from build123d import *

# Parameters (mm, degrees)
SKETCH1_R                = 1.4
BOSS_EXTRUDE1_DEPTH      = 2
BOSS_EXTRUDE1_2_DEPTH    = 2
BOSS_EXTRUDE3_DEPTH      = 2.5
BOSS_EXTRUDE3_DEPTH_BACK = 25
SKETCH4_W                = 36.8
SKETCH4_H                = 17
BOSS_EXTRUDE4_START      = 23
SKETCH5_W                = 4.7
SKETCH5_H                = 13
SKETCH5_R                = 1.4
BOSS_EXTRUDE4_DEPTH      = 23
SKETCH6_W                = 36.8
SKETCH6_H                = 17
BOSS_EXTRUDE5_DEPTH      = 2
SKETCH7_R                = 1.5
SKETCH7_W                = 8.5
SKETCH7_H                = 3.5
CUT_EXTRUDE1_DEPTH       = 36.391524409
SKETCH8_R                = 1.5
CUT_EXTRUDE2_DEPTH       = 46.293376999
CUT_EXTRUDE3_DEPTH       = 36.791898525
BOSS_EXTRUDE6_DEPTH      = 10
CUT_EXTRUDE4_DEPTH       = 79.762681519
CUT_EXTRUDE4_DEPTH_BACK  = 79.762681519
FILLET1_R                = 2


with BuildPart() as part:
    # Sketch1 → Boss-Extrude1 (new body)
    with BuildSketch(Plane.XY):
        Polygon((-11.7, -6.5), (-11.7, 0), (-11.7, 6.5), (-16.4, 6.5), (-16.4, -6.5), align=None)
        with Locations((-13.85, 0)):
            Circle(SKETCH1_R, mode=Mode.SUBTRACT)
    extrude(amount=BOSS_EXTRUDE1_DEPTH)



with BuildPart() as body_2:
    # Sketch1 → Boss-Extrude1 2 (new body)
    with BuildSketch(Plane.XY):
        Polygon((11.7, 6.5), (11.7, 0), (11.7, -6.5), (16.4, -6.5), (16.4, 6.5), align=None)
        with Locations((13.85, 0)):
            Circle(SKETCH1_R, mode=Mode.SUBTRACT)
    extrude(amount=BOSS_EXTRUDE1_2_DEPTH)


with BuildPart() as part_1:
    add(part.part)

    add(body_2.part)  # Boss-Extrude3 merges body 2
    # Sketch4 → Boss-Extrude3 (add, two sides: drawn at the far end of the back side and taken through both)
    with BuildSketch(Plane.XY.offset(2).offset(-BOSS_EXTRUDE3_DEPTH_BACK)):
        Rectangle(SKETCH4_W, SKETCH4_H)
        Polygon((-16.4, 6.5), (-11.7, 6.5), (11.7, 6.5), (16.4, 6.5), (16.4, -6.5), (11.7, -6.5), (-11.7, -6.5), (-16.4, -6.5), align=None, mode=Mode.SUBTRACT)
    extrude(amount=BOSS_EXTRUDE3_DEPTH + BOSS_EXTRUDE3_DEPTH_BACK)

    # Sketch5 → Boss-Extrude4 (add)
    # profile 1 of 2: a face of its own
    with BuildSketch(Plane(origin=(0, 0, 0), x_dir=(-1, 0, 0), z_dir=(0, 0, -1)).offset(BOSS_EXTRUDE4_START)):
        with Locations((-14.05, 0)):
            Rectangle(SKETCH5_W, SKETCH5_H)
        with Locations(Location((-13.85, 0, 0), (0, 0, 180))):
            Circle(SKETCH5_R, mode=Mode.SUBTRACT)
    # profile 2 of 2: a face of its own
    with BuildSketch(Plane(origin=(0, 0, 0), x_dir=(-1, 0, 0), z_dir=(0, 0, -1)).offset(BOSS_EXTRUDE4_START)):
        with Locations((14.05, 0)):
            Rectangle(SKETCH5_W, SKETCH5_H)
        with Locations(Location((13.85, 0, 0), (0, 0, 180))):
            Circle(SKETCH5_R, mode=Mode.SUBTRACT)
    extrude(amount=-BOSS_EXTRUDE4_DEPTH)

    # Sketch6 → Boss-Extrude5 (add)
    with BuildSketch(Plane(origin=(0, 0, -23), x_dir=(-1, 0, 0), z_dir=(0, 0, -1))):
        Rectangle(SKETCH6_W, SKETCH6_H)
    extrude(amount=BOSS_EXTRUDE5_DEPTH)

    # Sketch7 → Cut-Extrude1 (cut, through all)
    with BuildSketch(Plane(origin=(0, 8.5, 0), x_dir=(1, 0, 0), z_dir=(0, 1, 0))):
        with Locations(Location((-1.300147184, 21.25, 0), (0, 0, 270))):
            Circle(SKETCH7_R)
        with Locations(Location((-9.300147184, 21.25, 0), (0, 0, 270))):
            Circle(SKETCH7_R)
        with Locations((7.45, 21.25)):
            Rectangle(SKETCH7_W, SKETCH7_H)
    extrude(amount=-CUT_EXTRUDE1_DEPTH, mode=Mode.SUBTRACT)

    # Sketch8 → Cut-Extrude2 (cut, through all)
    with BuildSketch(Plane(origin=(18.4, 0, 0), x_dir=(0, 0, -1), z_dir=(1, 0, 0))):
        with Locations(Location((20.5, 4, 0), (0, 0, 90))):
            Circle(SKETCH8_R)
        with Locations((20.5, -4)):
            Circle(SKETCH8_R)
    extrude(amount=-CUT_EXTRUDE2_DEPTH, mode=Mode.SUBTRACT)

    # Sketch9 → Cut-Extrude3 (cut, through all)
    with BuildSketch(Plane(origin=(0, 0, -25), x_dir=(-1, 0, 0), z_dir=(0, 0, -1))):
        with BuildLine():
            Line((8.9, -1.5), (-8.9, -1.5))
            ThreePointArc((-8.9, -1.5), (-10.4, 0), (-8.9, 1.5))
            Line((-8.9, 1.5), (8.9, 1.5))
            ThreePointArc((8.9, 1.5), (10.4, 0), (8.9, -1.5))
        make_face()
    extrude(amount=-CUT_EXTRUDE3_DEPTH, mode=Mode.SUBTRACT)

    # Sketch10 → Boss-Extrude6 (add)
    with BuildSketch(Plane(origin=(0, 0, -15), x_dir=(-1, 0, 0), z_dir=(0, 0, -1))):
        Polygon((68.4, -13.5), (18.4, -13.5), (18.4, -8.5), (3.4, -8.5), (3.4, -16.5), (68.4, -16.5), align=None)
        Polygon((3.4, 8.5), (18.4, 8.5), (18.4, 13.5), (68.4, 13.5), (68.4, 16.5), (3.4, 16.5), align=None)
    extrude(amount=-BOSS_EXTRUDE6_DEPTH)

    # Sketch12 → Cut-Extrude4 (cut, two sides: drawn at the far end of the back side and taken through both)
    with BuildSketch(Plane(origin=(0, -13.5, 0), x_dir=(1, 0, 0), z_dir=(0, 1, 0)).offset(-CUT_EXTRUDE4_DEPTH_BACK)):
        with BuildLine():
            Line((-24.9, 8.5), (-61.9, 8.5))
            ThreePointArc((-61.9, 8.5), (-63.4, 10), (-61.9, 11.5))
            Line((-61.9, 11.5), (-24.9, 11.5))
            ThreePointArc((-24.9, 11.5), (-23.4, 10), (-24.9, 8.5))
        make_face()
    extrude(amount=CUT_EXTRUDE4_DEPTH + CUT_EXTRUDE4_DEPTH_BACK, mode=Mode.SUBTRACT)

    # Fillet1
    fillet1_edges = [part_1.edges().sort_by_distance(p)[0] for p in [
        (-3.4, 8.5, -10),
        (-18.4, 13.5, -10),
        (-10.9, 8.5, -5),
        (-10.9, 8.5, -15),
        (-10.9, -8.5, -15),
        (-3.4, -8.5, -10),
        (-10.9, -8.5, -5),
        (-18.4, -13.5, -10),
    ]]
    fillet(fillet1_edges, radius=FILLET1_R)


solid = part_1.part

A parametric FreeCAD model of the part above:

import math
import FreeCAD as App
import Part
import Sketcher


def edges_at(feature, points):
    """Names of the edges that pass closest to the given points."""
    edges = feature.Shape.Edges
    near = lambda p: min(range(len(edges)), key=lambda i: edges[i].distToShape(Part.Vertex(*p))[0])
    return sorted({f"Edge{near(p) + 1}" for p in points})


def add_polygon(sketch, points):
    """Adds a closed chain of lines whose ends are joined by coincident constraints."""
    first, n = sketch.GeometryCount, len(points)
    for a, b in zip(points, points[1:] + points[:1]):
        sketch.addGeometry(Part.LineSegment(App.Vector(*a, 0), App.Vector(*b, 0)), False)
    for i in range(n):
        sketch.addConstraint(Sketcher.Constraint("Coincident", first + i, 2, first + (i + 1) % n, 1))

doc = App.newDocument("Part")
body = doc.addObject("PartDesign::Body", "Body")

# Sketch on XY plane
sketch1 = body.newObject("Sketcher::SketchObject", "Sketch")
sketch1.AttachmentSupport = (doc.getObject("XY_Plane"), [""])
sketch1.MapMode = "FlatFace"
add_polygon(sketch1, [(-11.7, -6.5), (-11.7, 6.5), (-16.4, 6.5), (-16.4, -6.5)])  # lines 0-3
sketch1.addGeometry(Part.Circle(App.Vector(-13.85, 0, 0), App.Vector(0, 0, 1), 1.4), False)  # 4
sketch1.addConstraint(Sketcher.Constraint("Vertical", 0))
sketch1.addConstraint(Sketcher.Constraint("Horizontal", 1))
sketch1.addConstraint(Sketcher.Constraint("Vertical", 2))
sketch1.addConstraint(Sketcher.Constraint("Horizontal", 3))
sketch1.addConstraint(Sketcher.Constraint("PointOnObject", 4, 3, -1))
sketch1.addConstraint(Sketcher.Constraint("Diameter", 4, 2.8))
sketch1.addConstraint(Sketcher.Constraint("DistanceY", 0, 1, 0, 2, 13.0))
sketch1.addConstraint(Sketcher.Constraint("DistanceX", 1, 2, 1, 1, 4.7))
sketch1.addConstraint(Sketcher.Constraint("DistanceX", 0, 2, -1, 1, 11.7))
sketch1.addConstraint(Sketcher.Constraint("DistanceY", -1, 1, 0, 2, 6.5))
sketch1.addConstraint(Sketcher.Constraint("DistanceX", 4, 3, -1, 1, 13.85))
pad1 = body.newObject("PartDesign::Pad", "Pad")
pad1.Profile = sketch1
pad1.Length = 2
body2 = doc.addObject("PartDesign::Body", "Body001")

# Sketch on XY plane
sketch2 = body2.newObject("Sketcher::SketchObject", "Sketch001")
sketch2.AttachmentSupport = (doc.getObject("XY_Plane001"), [""])
sketch2.MapMode = "FlatFace"
add_polygon(sketch2, [(11.7, 6.5), (11.7, -6.5), (16.4, -6.5), (16.4, 6.5)])  # lines 0-3
sketch2.addGeometry(Part.Circle(App.Vector(13.85, 0, 0), App.Vector(0, 0, 1), 1.4), False)  # 4
sketch2.addConstraint(Sketcher.Constraint("Vertical", 0))
sketch2.addConstraint(Sketcher.Constraint("Horizontal", 1))
sketch2.addConstraint(Sketcher.Constraint("Vertical", 2))
sketch2.addConstraint(Sketcher.Constraint("Horizontal", 3))
sketch2.addConstraint(Sketcher.Constraint("PointOnObject", 4, 3, -1))
sketch2.addConstraint(Sketcher.Constraint("Diameter", 4, 2.8))
sketch2.addConstraint(Sketcher.Constraint("DistanceY", 0, 2, 0, 1, 13.0))
sketch2.addConstraint(Sketcher.Constraint("DistanceX", 1, 1, 1, 2, 4.7))
sketch2.addConstraint(Sketcher.Constraint("DistanceX", -1, 1, 0, 2, 11.7))
sketch2.addConstraint(Sketcher.Constraint("DistanceY", 0, 2, -1, 1, 6.5))
sketch2.addConstraint(Sketcher.Constraint("DistanceX", -1, 1, 4, 3, 13.85))
pad2 = body2.newObject("PartDesign::Pad", "Pad001")
pad2.Profile = sketch2
pad2.Length = 2
body.AllowCompound = True
doc.recompute()

boolean = body.newObject("PartDesign::Boolean", "Boolean")
boolean.Type = "Fuse"
boolean.addObjects([body2])

# Sketch on XY plane
sketch3 = body.newObject("Sketcher::SketchObject", "Sketch002")
sketch3.AttachmentSupport = (doc.getObject("XY_Plane"), [""])
sketch3.MapMode = "FlatFace"
sketch3.AttachmentOffset = App.Placement(App.Vector(0, 0, 2), App.Rotation())
add_polygon(sketch3, [(-18.4, 8.5), (-18.4, -8.5), (18.4, -8.5), (18.4, 8.5)])  # lines 0-3
add_polygon(sketch3, [(-16.4, -6.5), (-16.4, 6.5), (16.4, 6.5), (16.4, -6.5)])  # lines 4-7
sketch3.addConstraint(Sketcher.Constraint("Vertical", 0))
sketch3.addConstraint(Sketcher.Constraint("Horizontal", 1))
sketch3.addConstraint(Sketcher.Constraint("Vertical", 2))
sketch3.addConstraint(Sketcher.Constraint("Horizontal", 3))
sketch3.addConstraint(Sketcher.Constraint("Vertical", 4))
sketch3.addConstraint(Sketcher.Constraint("Horizontal", 5))
sketch3.addConstraint(Sketcher.Constraint("Vertical", 6))
sketch3.addConstraint(Sketcher.Constraint("Horizontal", 7))
sketch3.addConstraint(Sketcher.Constraint("Symmetric", 0, 2, 2, 2, -1, 1))
sketch3.addConstraint(Sketcher.Constraint("Symmetric", 4, 2, 6, 2, -1, 1))
sketch3.addConstraint(Sketcher.Constraint("DistanceY", 0, 2, 0, 1, 17.0))
sketch3.addConstraint(Sketcher.Constraint("DistanceY", 4, 1, 4, 2, 13.0))
sketch3.addConstraint(Sketcher.Constraint("DistanceX", 1, 1, 1, 2, 36.8))
sketch3.addConstraint(Sketcher.Constraint("DistanceX", 5, 1, 5, 2, 32.8))
pad3 = body.newObject("PartDesign::Pad", "Pad002")
pad3.Profile = sketch3
pad3.Type = "TwoLengths"
pad3.Length = 2.5
pad3.Length2 = 25

# Sketch on XY plane
sketch4 = body.newObject("Sketcher::SketchObject", "Sketch003")
sketch4.AttachmentSupport = (doc.getObject("XY_Plane"), [""])
sketch4.MapMode = "FlatFace"
sketch4.AttachmentOffset = App.Placement(App.Vector(0, 0, -23), App.Rotation())
add_polygon(sketch4, [(16.4, 6.5), (16.4, -6.5), (11.7, -6.5), (11.7, 6.5)])  # lines 0-3
sketch4.addGeometry(Part.Circle(App.Vector(13.85, 0, 0), App.Vector(0, 0, 1), 1.4), False)  # 4
add_polygon(sketch4, [(-11.7, 6.5), (-11.7, -6.5), (-16.4, -6.5), (-16.4, 6.5)])  # lines 5-8
sketch4.addGeometry(Part.Circle(App.Vector(-13.85, 0, 0), App.Vector(0, 0, 1), 1.4), False)  # 9
sketch4.addConstraint(Sketcher.Constraint("Vertical", 0))
sketch4.addConstraint(Sketcher.Constraint("Horizontal", 1))
sketch4.addConstraint(Sketcher.Constraint("Vertical", 2))
sketch4.addConstraint(Sketcher.Constraint("Horizontal", 3))
sketch4.addConstraint(Sketcher.Constraint("Vertical", 5))
sketch4.addConstraint(Sketcher.Constraint("Horizontal", 6))
sketch4.addConstraint(Sketcher.Constraint("Vertical", 7))
sketch4.addConstraint(Sketcher.Constraint("Horizontal", 8))
sketch4.addConstraint(Sketcher.Constraint("Equal", 4, 9))
sketch4.addConstraint(Sketcher.Constraint("Symmetric", 4, 3, 9, 3, -1, 1))
sketch4.addConstraint(Sketcher.Constraint("Symmetric", 2, 2, 5, 2, -1, 1))
sketch4.addConstraint(Sketcher.Constraint("Symmetric", 0, 2, 7, 2, -1, 1))
sketch4.addConstraint(Sketcher.Constraint("PointOnObject", 4, 3, -1))
sketch4.addConstraint(Sketcher.Constraint("Horizontal", 1, 2, 5, 2))
sketch4.addConstraint(Sketcher.Constraint("Diameter", 4, 2.8))
sketch4.addConstraint(Sketcher.Constraint("DistanceY", 0, 2, 0, 1, 13.0))
sketch4.addConstraint(Sketcher.Constraint("DistanceX", 1, 2, 1, 1, 4.7))
sketch4.addConstraint(Sketcher.Constraint("DistanceX", -1, 1, 0, 2, 16.4))
sketch4.addConstraint(Sketcher.Constraint("DistanceX", 9, 3, 4, 3, 27.7))
pad4 = body.newObject("PartDesign::Pad", "Pad003")
pad4.Profile = sketch4
pad4.Length = 23

# Sketch on XY plane
sketch5 = body.newObject("Sketcher::SketchObject", "Sketch004")
sketch5.AttachmentSupport = (doc.getObject("XY_Plane"), [""])
sketch5.MapMode = "FlatFace"
sketch5.AttachmentOffset = App.Placement(App.Vector(0, 0, -23), App.Rotation())
add_polygon(sketch5, [(18.4, 8.5), (18.4, -8.5), (-18.4, -8.5), (-18.4, 8.5)])  # lines 0-3
sketch5.addConstraint(Sketcher.Constraint("Vertical", 0))
sketch5.addConstraint(Sketcher.Constraint("Horizontal", 1))
sketch5.addConstraint(Sketcher.Constraint("Vertical", 2))
sketch5.addConstraint(Sketcher.Constraint("Horizontal", 3))
sketch5.addConstraint(Sketcher.Constraint("Symmetric", 0, 2, 2, 2, -1, 1))
sketch5.addConstraint(Sketcher.Constraint("DistanceY", 0, 2, 0, 1, 17.0))
sketch5.addConstraint(Sketcher.Constraint("DistanceX", 1, 2, 1, 1, 36.8))
pad5 = body.newObject("PartDesign::Pad", "Pad004")
pad5.Profile = sketch5
pad5.Length = 2
pad5.Reversed = True

# Sketch on XZ plane
sketch6 = body.newObject("Sketcher::SketchObject", "Sketch005")
sketch6.AttachmentSupport = (doc.getObject("XZ_Plane"), [""])
sketch6.MapMode = "FlatFace"
sketch6.AttachmentOffset = App.Placement(App.Vector(0, 0, -8.5), App.Rotation())
sketch6.addGeometry(Part.Circle(App.Vector(-1.300147, -21.25, 0), App.Vector(0, 0, 1), 1.5), False)  # 0
sketch6.addGeometry(Part.Circle(App.Vector(-9.300147, -21.25, 0), App.Vector(0, 0, 1), 1.5), False)  # 1
add_polygon(sketch6, [(3.2, -23), (3.2, -19.5), (11.7, -19.5), (11.7, -23)])  # lines 2-5
sketch6.addConstraint(Sketcher.Constraint("Vertical", 2))
sketch6.addConstraint(Sketcher.Constraint("Horizontal", 3))
sketch6.addConstraint(Sketcher.Constraint("Vertical", 4))
sketch6.addConstraint(Sketcher.Constraint("Horizontal", 5))
sketch6.addConstraint(Sketcher.Constraint("Equal", 0, 1))
sketch6.addConstraint(Sketcher.Constraint("Horizontal", 0, 3, 1, 3))
sketch6.addConstraint(Sketcher.Constraint("Diameter", 0, 3.0))
sketch6.addConstraint(Sketcher.Constraint("DistanceX", 3, 1, 3, 2, 8.5))
sketch6.addConstraint(Sketcher.Constraint("DistanceY", 2, 1, 2, 2, 3.5))
sketch6.addConstraint(Sketcher.Constraint("DistanceY", 4, 2, -1, 1, 23.0))
sketch6.addConstraint(Sketcher.Constraint("DistanceX", 1, 3, 0, 3, 8.0))
sketch6.addConstraint(Sketcher.Constraint("DistanceX", -1, 1, 2, 2, 3.2))
sketch6.addConstraint(Sketcher.Constraint("DistanceY", 0, 3, -1, 1, 21.25))
sketch6.addConstraint(Sketcher.Constraint("DistanceX", 0, 3, -1, 1, 1.300147))
pocket1 = body.newObject("PartDesign::Pocket", "Pocket")
pocket1.Profile = sketch6
pocket1.Type = "ThroughAll"
pocket1.Reversed = True

# Sketch on YZ plane
sketch7 = body.newObject("Sketcher::SketchObject", "Sketch006")
sketch7.AttachmentSupport = (doc.getObject("YZ_Plane"), [""])
sketch7.MapMode = "FlatFace"
sketch7.AttachmentOffset = App.Placement(App.Vector(0, 0, 18.4), App.Rotation())
sketch7.addGeometry(Part.Circle(App.Vector(4, -20.5, 0), App.Vector(0, 0, 1), 1.5), False)
sketch7.addGeometry(Part.Circle(App.Vector(-4, -20.5, 0), App.Vector(0, 0, 1), 1.5), False)
sketch7.addConstraint(Sketcher.Constraint("Equal", 0, 1))
sketch7.addConstraint(Sketcher.Constraint("Symmetric", 0, 3, 1, 3, -2))
sketch7.addConstraint(Sketcher.Constraint("Diameter", 0, 3.0))
sketch7.addConstraint(Sketcher.Constraint("DistanceX", -1, 1, 0, 3, 4.0))
sketch7.addConstraint(Sketcher.Constraint("DistanceY", 0, 3, -1, 1, 20.5))
pocket2 = body.newObject("PartDesign::Pocket", "Pocket001")
pocket2.Profile = sketch7
pocket2.Type = "ThroughAll"

# Sketch on XY plane
sketch8 = body.newObject("Sketcher::SketchObject", "Sketch007")
sketch8.AttachmentSupport = (doc.getObject("XY_Plane"), [""])
sketch8.MapMode = "FlatFace"
sketch8.AttachmentOffset = App.Placement(App.Vector(0, 0, -25), App.Rotation())
sketch8.addGeometry(Part.LineSegment(App.Vector(8.9, -1.5, 0), App.Vector(-8.9, -1.5, 0)), False)
sketch8.addGeometry(Part.ArcOfCircle(Part.Circle(App.Vector(-8.9, 0, 0), App.Vector(0, 0, 1), 1.5), math.radians(90), math.radians(270)), False)
sketch8.addGeometry(Part.LineSegment(App.Vector(-8.9, 1.5, 0), App.Vector(8.9, 1.5, 0)), False)
sketch8.addGeometry(Part.ArcOfCircle(Part.Circle(App.Vector(8.9, 0, 0), App.Vector(0, 0, 1), 1.5), math.radians(-90), math.radians(90)), False)
sketch8.addConstraint(Sketcher.Constraint("Tangent", 0, 2, 1, 2))
sketch8.addConstraint(Sketcher.Constraint("Tangent", 1, 1, 2, 1))
sketch8.addConstraint(Sketcher.Constraint("Tangent", 2, 2, 3, 2))
sketch8.addConstraint(Sketcher.Constraint("Tangent", 3, 1, 0, 1))
sketch8.addConstraint(Sketcher.Constraint("Horizontal", 0))
sketch8.addConstraint(Sketcher.Constraint("Horizontal", 2))
sketch8.addConstraint(Sketcher.Constraint("Symmetric", 1, 3, 3, 3, -1, 1))
sketch8.addConstraint(Sketcher.Constraint("Radius", 1, 1.5))
sketch8.addConstraint(Sketcher.Constraint("DistanceX", 0, 2, 0, 1, 17.8))
pocket3 = body.newObject("PartDesign::Pocket", "Pocket002")
pocket3.Profile = sketch8
pocket3.Type = "ThroughAll"
pocket3.Reversed = True

# Sketch on XY plane
sketch9 = body.newObject("Sketcher::SketchObject", "Sketch008")
sketch9.AttachmentSupport = (doc.getObject("XY_Plane"), [""])
sketch9.MapMode = "FlatFace"
sketch9.AttachmentOffset = App.Placement(App.Vector(0, 0, -15), App.Rotation())
add_polygon(sketch9, [(-68.4, -13.5), (-18.4, -13.5), (-18.4, -8.5), (-3.4, -8.5), (-3.4, -16.5), (-68.4, -16.5)])  # lines 0-5
add_polygon(sketch9, [(-3.4, 8.5), (-18.4, 8.5), (-18.4, 13.5), (-68.4, 13.5), (-68.4, 16.5), (-3.4, 16.5)])  # lines 6-11
sketch9.addConstraint(Sketcher.Constraint("Horizontal", 0))
sketch9.addConstraint(Sketcher.Constraint("Vertical", 1))
sketch9.addConstraint(Sketcher.Constraint("Horizontal", 2))
sketch9.addConstraint(Sketcher.Constraint("Vertical", 3))
sketch9.addConstraint(Sketcher.Constraint("Horizontal", 4))
sketch9.addConstraint(Sketcher.Constraint("Vertical", 5))
sketch9.addConstraint(Sketcher.Constraint("Horizontal", 6))
sketch9.addConstraint(Sketcher.Constraint("Vertical", 7))
sketch9.addConstraint(Sketcher.Constraint("Horizontal", 8))
sketch9.addConstraint(Sketcher.Constraint("Vertical", 9))
sketch9.addConstraint(Sketcher.Constraint("Horizontal", 10))
sketch9.addConstraint(Sketcher.Constraint("Vertical", 11))
sketch9.addConstraint(Sketcher.Constraint("Symmetric", 1, 2, 6, 2, -1))
sketch9.addConstraint(Sketcher.Constraint("Symmetric", 5, 2, 8, 2, -1))
sketch9.addConstraint(Sketcher.Constraint("Symmetric", 3, 2, 10, 2, -1))
sketch9.addConstraint(Sketcher.Constraint("DistanceX", 0, 1, 0, 2, 50.0))
sketch9.addConstraint(Sketcher.Constraint("DistanceX", 2, 1, 2, 2, 15.0))
sketch9.addConstraint(Sketcher.Constraint("DistanceY", 1, 1, 1, 2, 5.0))
sketch9.addConstraint(Sketcher.Constraint("DistanceY", 3, 2, 3, 1, 8.0))
sketch9.addConstraint(Sketcher.Constraint("DistanceY", 1, 2, 6, 2, 17.0))
sketch9.addConstraint(Sketcher.Constraint("DistanceX", 0, 2, -1, 1, 18.4))
pad6 = body.newObject("PartDesign::Pad", "Pad005")
pad6.Profile = sketch9
pad6.Length = 10

# Sketch on XZ plane
sketch10 = body.newObject("Sketcher::SketchObject", "Sketch009")
sketch10.AttachmentSupport = (doc.getObject("XZ_Plane"), [""])
sketch10.MapMode = "FlatFace"
sketch10.AttachmentOffset = App.Placement(App.Vector(0, 0, 13.5), App.Rotation())
sketch10.addGeometry(Part.LineSegment(App.Vector(-61.9, -8.5, 0), App.Vector(-24.9, -8.5, 0)), False)
sketch10.addGeometry(Part.ArcOfCircle(Part.Circle(App.Vector(-24.9, -10, 0), App.Vector(0, 0, 1), 1.5), math.radians(-90), math.radians(90)), False)
sketch10.addGeometry(Part.LineSegment(App.Vector(-24.9, -11.5, 0), App.Vector(-61.9, -11.5, 0)), False)
sketch10.addGeometry(Part.ArcOfCircle(Part.Circle(App.Vector(-61.9, -10, 0), App.Vector(0, 0, 1), 1.5), math.radians(90), math.radians(270)), False)
sketch10.addConstraint(Sketcher.Constraint("Tangent", 0, 2, 1, 2))
sketch10.addConstraint(Sketcher.Constraint("Tangent", 1, 1, 2, 1))
sketch10.addConstraint(Sketcher.Constraint("Tangent", 2, 2, 3, 2))
sketch10.addConstraint(Sketcher.Constraint("Tangent", 3, 1, 0, 1))
sketch10.addConstraint(Sketcher.Constraint("Horizontal", 0))
sketch10.addConstraint(Sketcher.Constraint("Horizontal", 2))
sketch10.addConstraint(Sketcher.Constraint("Radius", 1, 1.5))
sketch10.addConstraint(Sketcher.Constraint("DistanceX", 0, 1, 0, 2, 37.0))
sketch10.addConstraint(Sketcher.Constraint("DistanceY", 1, 3, -1, 1, 10.0))
sketch10.addConstraint(Sketcher.Constraint("DistanceX", 1, 3, -1, 1, 24.9))
pocket4 = body.newObject("PartDesign::Pocket", "Pocket003")
pocket4.Profile = sketch10
pocket4.Type = "ThroughAll"
pocket4.Midplane = True
doc.recompute()

fillet = body.newObject("PartDesign::Fillet", "Fillet")
fillet.Base = (pocket4, edges_at(pocket4, [
    (-3.4, 8.5, -10),
    (-18.4, 13.5, -10),
    (-10.9, 8.5, -5),
    (-10.9, 8.5, -15),
    (-10.9, -8.5, -15),
    (-3.4, -8.5, -10),
    (-10.9, -8.5, -5),
    (-18.4, -13.5, -10),
]))
fillet.Radius = 2

doc.recompute()
